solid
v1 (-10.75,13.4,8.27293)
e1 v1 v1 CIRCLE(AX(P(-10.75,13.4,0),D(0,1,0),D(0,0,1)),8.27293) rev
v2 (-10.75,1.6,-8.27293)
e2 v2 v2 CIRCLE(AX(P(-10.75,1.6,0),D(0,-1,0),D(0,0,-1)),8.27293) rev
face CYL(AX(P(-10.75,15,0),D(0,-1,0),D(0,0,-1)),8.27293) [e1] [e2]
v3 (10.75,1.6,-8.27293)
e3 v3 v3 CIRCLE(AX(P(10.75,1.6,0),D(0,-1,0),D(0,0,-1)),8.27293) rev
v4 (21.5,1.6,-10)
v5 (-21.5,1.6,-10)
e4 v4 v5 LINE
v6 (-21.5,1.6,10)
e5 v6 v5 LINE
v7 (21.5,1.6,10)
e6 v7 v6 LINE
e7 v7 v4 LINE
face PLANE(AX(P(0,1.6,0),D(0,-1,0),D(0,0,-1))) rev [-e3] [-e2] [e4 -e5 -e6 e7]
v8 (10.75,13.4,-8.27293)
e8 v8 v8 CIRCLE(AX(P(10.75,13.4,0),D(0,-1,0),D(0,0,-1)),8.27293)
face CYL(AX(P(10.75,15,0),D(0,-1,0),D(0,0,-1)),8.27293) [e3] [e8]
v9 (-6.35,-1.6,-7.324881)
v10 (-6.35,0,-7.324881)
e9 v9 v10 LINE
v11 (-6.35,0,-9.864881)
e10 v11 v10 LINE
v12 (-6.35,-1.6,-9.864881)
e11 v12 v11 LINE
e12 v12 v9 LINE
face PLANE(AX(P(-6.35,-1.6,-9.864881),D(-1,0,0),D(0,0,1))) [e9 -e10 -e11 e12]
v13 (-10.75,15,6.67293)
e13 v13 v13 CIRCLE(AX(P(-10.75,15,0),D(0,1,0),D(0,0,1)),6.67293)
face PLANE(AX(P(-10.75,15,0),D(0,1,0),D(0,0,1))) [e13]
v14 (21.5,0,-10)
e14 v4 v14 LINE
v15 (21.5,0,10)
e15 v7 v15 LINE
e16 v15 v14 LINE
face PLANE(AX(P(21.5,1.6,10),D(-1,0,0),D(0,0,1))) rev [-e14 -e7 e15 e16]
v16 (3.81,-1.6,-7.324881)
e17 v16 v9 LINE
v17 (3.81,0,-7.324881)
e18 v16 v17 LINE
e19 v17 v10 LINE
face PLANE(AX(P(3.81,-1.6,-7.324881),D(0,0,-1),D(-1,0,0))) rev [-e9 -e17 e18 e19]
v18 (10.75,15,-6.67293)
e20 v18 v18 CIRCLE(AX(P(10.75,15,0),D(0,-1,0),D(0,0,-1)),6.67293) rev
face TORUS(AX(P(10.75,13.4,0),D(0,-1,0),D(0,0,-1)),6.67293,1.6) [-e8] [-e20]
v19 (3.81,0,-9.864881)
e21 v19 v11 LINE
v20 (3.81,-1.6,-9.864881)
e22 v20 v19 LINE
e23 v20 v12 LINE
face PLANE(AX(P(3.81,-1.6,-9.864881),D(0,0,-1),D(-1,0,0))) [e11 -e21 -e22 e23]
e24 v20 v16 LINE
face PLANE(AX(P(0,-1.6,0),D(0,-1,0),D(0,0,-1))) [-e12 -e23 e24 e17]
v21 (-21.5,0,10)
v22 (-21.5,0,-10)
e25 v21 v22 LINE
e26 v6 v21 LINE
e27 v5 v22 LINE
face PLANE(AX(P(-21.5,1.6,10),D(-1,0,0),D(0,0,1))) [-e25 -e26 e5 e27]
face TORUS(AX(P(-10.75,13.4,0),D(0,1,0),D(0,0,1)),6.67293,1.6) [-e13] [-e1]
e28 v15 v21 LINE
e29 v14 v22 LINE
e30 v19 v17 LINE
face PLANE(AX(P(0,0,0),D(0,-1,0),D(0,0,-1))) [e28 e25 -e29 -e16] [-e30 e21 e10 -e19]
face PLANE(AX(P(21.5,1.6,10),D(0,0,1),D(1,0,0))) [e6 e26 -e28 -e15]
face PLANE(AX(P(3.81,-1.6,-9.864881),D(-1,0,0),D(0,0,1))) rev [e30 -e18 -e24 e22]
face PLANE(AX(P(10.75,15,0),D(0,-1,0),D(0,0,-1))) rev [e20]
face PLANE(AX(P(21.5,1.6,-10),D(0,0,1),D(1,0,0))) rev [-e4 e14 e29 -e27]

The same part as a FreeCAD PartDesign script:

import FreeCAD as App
import Part
import Sketcher
from FreeCAD import Vector


def edges_at(feature, points):
    """Names of the edges that pass closest to the given points."""
    edges = feature.Shape.Edges
    near = lambda p: min(range(len(edges)), key=lambda i: edges[i].distToShape(Part.Vertex(*p))[0])
    return sorted({f"Edge{near(p) + 1}" for p in points})

doc = App.newDocument("Part")
body = doc.addObject("PartDesign::Body", "Body")

sketch1 = body.newObject("Sketcher::SketchObject", "Sketch")
sketch1.AttachmentSupport = (doc.getObject("XZ_Plane"), [""])
sketch1.MapMode = "FlatFace"
sketch1.addGeometry([
    Part.LineSegment(Vector(-21.5, -10, 0), Vector(-21.5, 10, 0)),
    Part.LineSegment(Vector(-21.5, 10, 0), Vector(21.5, 10, 0)),
    Part.LineSegment(Vector(21.5, 10, 0), Vector(21.5, -10, 0)),
    Part.LineSegment(Vector(21.5, -10, 0), Vector(-21.5, -10, 0)),
], False)
sketch1.addConstraint([
    Sketcher.Constraint("Coincident", 0, 2, 1, 1),
    Sketcher.Constraint("Coincident", 1, 2, 2, 1),
    Sketcher.Constraint("Coincident", 2, 2, 3, 1),
    Sketcher.Constraint("Coincident", 3, 2, 0, 1),
    Sketcher.Constraint("Vertical", 0),
    Sketcher.Constraint("Horizontal", 1),
    Sketcher.Constraint("Vertical", 2),
    Sketcher.Constraint("Horizontal", 3),
    Sketcher.Constraint("Symmetric", 0, 2, 2, 2, -1, 1),
    Sketcher.Constraint("DistanceX", 1, 1, 1, 2, 43.0),
    Sketcher.Constraint("DistanceY", 0, 1, 0, 2, 20.0),
])
pad1 = body.newObject("PartDesign::Pad", "Pad")
pad1.Profile = sketch1
pad1.Length = 1.6
pad1.Reversed = True

sketch2 = body.newObject("Sketcher::SketchObject", "Sketch001")
sketch2.AttachmentSupport = (doc.getObject("XZ_Plane"), [""])
sketch2.MapMode = "FlatFace"
sketch2.AttachmentOffset = App.Placement(Vector(0, 0, -1.6), App.Rotation())
sketch2.addGeometry([
    Part.Circle(Vector(-10.75, 0, 0), Vector(0, 0, 1), 8.27293),
    Part.Circle(Vector(10.75, 0, 0), Vector(0, 0, 1), 8.27293),
], False)
sketch2.addConstraint([
    Sketcher.Constraint("Equal", 0, 1),
    Sketcher.Constraint("Symmetric", 0, 3, 1, 3, -1, 1),
    Sketcher.Constraint("PointOnObject", 0, 3, -1),
    Sketcher.Constraint("DistanceX", 0, 3, 1, 3, 21.5),
    Sketcher.Constraint("Diameter", 0, 16.54586),
])
pad2 = body.newObject("PartDesign::Pad", "Pad001")
pad2.Profile = sketch2
pad2.Length = 13.4
pad2.Reversed = True
doc.recompute()

fillet = body.newObject("PartDesign::Fillet", "Fillet")
fillet.Base = (pad2, edges_at(pad2, [(-10.75, 15, 8.273), (10.75, 15, 8.273)]))
fillet.Radius = 1.6

sketch3 = body.newObject("Sketcher::SketchObject", "Sketch002")
sketch3.AttachmentSupport = (doc.getObject("XZ_Plane"), [""])
sketch3.MapMode = "FlatFace"
sketch3.addGeometry([
    Part.LineSegment(Vector(-6.35, -7.324881, 0), Vector(-6.35, -9.864881, 0)),
    Part.LineSegment(Vector(-6.35, -9.864881, 0), Vector(3.81, -9.864881, 0)),
    Part.LineSegment(Vector(3.81, -9.864881, 0), Vector(3.81, -7.324881, 0)),
    Part.LineSegment(Vector(3.81, -7.324881, 0), Vector(-6.35, -7.324881, 0)),
], False)
sketch3.addConstraint([
    Sketcher.Constraint("Coincident", 0, 2, 1, 1),
    Sketcher.Constraint("Coincident", 1, 2, 2, 1),
    Sketcher.Constraint("Coincident", 2, 2, 3, 1),
    Sketcher.Constraint("Coincident", 3, 2, 0, 1),
    Sketcher.Constraint("Vertical", 0),
    Sketcher.Constraint("Horizontal", 1),
    Sketcher.Constraint("Vertical", 2),
    Sketcher.Constraint("Horizontal", 3),
    Sketcher.Constraint("DistanceX", 1, 1, 1, 2, 10.16),
    Sketcher.Constraint("DistanceY", 0, 2, 0, 1, 2.54),
    Sketcher.Constraint("DistanceX", 0, 2, -1, 1, 6.35),
    Sketcher.Constraint("DistanceY", 0, 2, -1, 1, 9.864881),
])
pad3 = body.newObject("PartDesign::Pad", "Pad002")
pad3.Profile = sketch3
pad3.Length = 1.6

doc.recompute()
